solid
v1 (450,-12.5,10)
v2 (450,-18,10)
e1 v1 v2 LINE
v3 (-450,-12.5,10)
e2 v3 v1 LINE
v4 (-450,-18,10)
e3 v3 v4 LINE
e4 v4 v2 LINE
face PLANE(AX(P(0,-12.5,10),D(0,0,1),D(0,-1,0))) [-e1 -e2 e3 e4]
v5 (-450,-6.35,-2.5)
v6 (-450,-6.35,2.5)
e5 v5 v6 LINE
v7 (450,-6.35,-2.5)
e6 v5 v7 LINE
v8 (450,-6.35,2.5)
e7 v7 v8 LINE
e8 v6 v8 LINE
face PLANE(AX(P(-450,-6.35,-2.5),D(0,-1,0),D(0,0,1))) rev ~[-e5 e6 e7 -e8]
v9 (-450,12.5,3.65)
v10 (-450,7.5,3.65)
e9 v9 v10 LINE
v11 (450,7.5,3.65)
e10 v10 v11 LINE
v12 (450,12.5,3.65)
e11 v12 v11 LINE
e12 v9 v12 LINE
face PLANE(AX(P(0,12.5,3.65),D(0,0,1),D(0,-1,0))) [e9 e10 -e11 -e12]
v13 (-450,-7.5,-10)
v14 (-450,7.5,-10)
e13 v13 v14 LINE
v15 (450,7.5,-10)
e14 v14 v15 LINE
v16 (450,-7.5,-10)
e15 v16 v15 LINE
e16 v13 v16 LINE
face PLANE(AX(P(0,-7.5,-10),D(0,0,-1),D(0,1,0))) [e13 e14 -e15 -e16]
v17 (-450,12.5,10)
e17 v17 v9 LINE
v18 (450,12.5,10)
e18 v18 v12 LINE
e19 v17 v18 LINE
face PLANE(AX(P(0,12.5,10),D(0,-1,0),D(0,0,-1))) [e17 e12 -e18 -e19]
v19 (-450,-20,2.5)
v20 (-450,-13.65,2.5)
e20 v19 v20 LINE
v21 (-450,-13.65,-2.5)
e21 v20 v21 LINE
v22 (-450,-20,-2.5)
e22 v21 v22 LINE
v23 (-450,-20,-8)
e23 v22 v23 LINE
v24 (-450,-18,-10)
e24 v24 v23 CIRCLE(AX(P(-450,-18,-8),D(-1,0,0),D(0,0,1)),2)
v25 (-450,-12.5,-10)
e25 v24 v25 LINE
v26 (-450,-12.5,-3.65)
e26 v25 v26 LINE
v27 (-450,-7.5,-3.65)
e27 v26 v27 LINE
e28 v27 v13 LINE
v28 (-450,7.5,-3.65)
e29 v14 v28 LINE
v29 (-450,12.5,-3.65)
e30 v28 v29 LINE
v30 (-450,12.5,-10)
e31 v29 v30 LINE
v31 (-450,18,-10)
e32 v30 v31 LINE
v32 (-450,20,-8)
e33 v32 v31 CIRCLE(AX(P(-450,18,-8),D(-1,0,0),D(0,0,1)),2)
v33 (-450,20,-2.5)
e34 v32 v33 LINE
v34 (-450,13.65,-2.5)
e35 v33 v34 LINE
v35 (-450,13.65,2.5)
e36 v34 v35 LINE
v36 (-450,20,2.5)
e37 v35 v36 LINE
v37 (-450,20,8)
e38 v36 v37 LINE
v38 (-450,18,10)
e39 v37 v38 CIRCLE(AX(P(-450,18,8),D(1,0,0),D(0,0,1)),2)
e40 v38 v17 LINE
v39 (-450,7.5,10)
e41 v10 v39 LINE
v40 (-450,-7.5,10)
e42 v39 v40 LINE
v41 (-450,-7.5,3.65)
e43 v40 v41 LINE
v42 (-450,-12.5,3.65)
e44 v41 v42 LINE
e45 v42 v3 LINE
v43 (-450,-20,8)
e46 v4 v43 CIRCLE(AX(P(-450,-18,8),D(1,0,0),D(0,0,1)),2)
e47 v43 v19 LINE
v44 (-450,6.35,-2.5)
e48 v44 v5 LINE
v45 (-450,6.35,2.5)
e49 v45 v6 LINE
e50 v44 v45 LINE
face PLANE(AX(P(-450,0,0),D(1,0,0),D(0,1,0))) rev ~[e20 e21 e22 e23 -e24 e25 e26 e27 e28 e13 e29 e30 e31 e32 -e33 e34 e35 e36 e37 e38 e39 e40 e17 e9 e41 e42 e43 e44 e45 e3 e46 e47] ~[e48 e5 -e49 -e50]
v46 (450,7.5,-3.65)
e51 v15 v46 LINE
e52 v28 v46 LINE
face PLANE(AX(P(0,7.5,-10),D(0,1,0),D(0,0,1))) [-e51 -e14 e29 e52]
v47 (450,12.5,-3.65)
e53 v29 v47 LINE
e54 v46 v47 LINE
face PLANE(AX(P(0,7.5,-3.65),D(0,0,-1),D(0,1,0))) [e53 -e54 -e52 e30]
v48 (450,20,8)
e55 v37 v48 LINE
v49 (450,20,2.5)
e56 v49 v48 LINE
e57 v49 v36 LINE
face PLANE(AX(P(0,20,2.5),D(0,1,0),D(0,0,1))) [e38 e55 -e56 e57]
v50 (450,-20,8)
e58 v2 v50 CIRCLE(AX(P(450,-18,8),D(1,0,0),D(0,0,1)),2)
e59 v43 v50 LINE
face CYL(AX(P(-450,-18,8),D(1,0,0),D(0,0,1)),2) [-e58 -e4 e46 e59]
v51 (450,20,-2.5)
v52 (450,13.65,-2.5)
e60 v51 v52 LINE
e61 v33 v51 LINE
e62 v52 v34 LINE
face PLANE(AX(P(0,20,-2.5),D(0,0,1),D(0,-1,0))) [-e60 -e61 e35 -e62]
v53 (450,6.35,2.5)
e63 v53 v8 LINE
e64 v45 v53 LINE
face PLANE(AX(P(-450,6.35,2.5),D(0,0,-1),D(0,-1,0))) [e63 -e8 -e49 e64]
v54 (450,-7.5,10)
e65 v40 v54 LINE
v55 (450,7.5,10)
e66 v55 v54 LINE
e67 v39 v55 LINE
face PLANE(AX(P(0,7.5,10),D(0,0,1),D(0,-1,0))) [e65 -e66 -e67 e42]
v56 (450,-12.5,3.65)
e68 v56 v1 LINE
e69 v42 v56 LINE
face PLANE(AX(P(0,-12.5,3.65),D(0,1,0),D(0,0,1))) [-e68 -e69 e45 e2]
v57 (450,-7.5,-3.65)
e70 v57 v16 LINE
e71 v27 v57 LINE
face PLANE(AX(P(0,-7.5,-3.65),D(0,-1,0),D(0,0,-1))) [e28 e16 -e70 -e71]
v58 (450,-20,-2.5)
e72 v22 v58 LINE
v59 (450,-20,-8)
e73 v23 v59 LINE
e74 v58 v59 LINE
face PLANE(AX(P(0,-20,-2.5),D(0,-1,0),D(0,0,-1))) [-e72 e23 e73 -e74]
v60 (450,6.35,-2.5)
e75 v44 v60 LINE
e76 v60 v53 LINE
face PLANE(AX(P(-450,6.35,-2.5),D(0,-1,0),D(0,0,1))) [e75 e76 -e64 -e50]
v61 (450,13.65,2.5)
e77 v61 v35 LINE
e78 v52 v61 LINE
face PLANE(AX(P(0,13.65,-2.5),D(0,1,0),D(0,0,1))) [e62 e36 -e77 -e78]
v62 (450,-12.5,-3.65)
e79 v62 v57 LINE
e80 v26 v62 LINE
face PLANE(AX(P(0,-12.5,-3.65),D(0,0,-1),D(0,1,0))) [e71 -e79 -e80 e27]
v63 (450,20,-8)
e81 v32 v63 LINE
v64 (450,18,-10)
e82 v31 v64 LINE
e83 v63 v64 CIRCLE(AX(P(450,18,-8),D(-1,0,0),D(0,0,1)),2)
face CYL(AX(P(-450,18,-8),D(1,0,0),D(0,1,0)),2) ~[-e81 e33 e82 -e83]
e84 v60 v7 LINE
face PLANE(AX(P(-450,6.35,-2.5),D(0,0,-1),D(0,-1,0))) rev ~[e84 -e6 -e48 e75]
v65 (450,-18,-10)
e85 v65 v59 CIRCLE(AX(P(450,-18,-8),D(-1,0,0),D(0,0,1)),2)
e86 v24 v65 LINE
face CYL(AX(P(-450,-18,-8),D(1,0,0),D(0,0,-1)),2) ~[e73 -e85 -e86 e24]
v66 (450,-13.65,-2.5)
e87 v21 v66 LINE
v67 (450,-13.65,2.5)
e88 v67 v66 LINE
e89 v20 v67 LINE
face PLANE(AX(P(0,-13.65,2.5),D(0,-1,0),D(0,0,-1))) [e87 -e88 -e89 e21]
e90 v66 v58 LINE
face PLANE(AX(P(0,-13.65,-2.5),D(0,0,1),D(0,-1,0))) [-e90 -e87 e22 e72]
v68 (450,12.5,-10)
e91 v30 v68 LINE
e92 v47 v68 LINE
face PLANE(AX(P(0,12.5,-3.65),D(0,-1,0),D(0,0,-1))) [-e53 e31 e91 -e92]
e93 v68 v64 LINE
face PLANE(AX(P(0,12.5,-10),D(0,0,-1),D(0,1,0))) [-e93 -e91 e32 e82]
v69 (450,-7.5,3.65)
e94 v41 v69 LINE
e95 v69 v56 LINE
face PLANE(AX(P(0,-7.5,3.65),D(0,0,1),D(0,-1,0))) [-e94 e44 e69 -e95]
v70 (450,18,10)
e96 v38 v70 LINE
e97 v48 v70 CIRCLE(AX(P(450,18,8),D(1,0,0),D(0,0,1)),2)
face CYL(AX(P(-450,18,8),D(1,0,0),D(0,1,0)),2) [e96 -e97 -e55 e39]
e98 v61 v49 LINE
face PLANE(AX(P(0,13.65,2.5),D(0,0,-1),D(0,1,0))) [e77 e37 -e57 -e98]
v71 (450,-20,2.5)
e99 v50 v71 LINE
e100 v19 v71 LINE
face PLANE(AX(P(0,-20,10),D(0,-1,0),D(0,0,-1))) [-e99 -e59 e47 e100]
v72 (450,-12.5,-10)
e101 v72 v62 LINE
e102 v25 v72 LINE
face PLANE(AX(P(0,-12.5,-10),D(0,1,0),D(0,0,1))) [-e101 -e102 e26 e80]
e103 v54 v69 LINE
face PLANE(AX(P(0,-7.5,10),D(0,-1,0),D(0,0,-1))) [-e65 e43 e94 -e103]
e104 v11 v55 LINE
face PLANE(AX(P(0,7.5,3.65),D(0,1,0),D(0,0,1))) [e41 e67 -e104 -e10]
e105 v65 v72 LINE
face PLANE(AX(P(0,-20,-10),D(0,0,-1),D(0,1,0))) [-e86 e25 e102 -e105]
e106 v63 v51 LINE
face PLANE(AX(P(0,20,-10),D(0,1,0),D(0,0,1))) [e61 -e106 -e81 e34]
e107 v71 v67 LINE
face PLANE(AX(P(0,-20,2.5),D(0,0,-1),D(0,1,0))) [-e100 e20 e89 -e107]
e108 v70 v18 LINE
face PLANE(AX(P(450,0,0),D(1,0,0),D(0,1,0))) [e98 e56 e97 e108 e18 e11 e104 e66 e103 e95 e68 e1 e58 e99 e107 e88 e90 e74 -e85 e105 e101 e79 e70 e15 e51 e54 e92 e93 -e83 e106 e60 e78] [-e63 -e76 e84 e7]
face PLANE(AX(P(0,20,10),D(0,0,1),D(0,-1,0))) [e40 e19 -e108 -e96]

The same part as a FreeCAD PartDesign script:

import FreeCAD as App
import Part
import Sketcher
from FreeCAD import Vector
Q = App.Units.Quantity


def edges_at(feature, points):
    """Names of the edges that pass closest to the given points."""
    edges = feature.Shape.Edges
    near = lambda p: min(range(len(edges)), key=lambda i: edges[i].distToShape(Part.Vertex(*p))[0])
    return sorted({f"Edge{near(p) + 1}" for p in points})


def add_polygon(sketch, points):
    """Adds a closed chain of lines whose ends are joined by coincident constraints."""
    first, n = sketch.GeometryCount, len(points)
    for a, b in zip(points, points[1:] + points[:1]):
        sketch.addGeometry(Part.LineSegment(App.Vector(*a, 0), App.Vector(*b, 0)), False)
    for i in range(n):
        sketch.addConstraint(Sketcher.Constraint("Coincident", first + i, 2, first + (i + 1) % n, 1))

doc = App.newDocument("Part")
body = doc.addObject("PartDesign::Body", "Body")

sketch1 = body.newObject("Sketcher::SketchObject", "Sketch")
sketch1.AttachmentSupport = (doc.getObject("YZ_Plane"), [""])
sketch1.MapMode = "FlatFace"
add_polygon(sketch1, [(20, 2), (20, 10), (12, 10), (12, 4), (8, 4), (8, 10), (-8, 10), (-8, 4), (-12, 4), (-12, 10), (-20, 10), (-20, 2), (-14, 2), (-14, -2), (-20, -2), (-20, -10), (-12, -10), (-12, -4), (-8, -4), (-8, -10), (8, -10), (8, -4), (12, -4), (12, -10), (20, -10), (20, -2), (14, -2), (14, 2)])
sketch1.addConstraint([
    Sketcher.Constraint("Vertical", 0),
    Sketcher.Constraint("Horizontal", 1),
    Sketcher.Constraint("Vertical", 2),
    Sketcher.Constraint("Horizontal", 3),
    Sketcher.Constraint("Vertical", 4),
    Sketcher.Constraint("Horizontal", 5),
    Sketcher.Constraint("Vertical", 6),
    Sketcher.Constraint("Horizontal", 7),
    Sketcher.Constraint("Vertical", 8),
    Sketcher.Constraint("Horizontal", 9),
    Sketcher.Constraint("Vertical", 10),
    Sketcher.Constraint("Horizontal", 11),
    Sketcher.Constraint("Vertical", 12),
    Sketcher.Constraint("Horizontal", 13),
    Sketcher.Constraint("Vertical", 14),
    Sketcher.Constraint("Horizontal", 15),
    Sketcher.Constraint("Vertical", 16),
    Sketcher.Constraint("Horizontal", 17),
    Sketcher.Constraint("Vertical", 18),
    Sketcher.Constraint("Horizontal", 19),
    Sketcher.Constraint("Vertical", 20),
    Sketcher.Constraint("Horizontal", 21),
    Sketcher.Constraint("Vertical", 22),
    Sketcher.Constraint("Horizontal", 23),
    Sketcher.Constraint("Vertical", 24),
    Sketcher.Constraint("Horizontal", 25),
    Sketcher.Constraint("Vertical", 26),
    Sketcher.Constraint("Horizontal", 27),
    Sketcher.Constraint("Symmetric", 0, 2, 14, 2, -1, 1),
    Sketcher.Constraint("Symmetric", 2, 2, 16, 2, -1, 1),
    Sketcher.Constraint("Symmetric", 4, 2, 18, 2, -1, 1),
    Sketcher.Constraint("Symmetric", 6, 2, 20, 2, -1, 1),
    Sketcher.Constraint("Symmetric", 8, 2, 22, 2, -1, 1),
    Sketcher.Constraint("Symmetric", 10, 2, 24, 2, -1, 1),
    Sketcher.Constraint("Symmetric", 12, 2, 26, 2, -1, 1),
    Sketcher.Constraint("Symmetric", 3, 2, 6, 2, -2),
    Sketcher.Constraint("Symmetric", 1, 2, 8, 2, -2),
    Sketcher.Constraint("Symmetric", 13, 2, 24, 2, -2),
    Sketcher.Constraint("Horizontal", 1, 2, 4, 2),
    Sketcher.Constraint("Equal", 23, 0),
    Sketcher.Constraint("Equal", 27, 2),
    Sketcher.Constraint("Equal", 21, 12),
    Sketcher.Constraint("DistanceX", 3, 2, 3, 1, Q("5 mm")),
    Sketcher.Constraint("DistanceX", 5, 2, 5, 1, Q("15 mm")),
    Sketcher.Constraint("DistanceX", 1, 2, 1, 1, Q("7.5 mm")),
    Sketcher.Constraint("DistanceX", 11, 1, 11, 2, Q("6.35 mm")),
])
pad1 = body.newObject("PartDesign::Pad", "Pad")
pad1.Profile = sketch1
pad1.Length = 900
pad1.Midplane = True

sketch2 = body.newObject("Sketcher::SketchObject", "Sketch001")
sketch2.AttachmentSupport = (doc.getObject("YZ_Plane"), [""])
sketch2.MapMode = "FlatFace"
sketch2.AttachmentOffset = App.Placement(Vector(0, 0, -450), App.Rotation())
add_polygon(sketch2, [(6, 2), (6, -2), (-6, -2), (-6, 2)])
sketch2.addConstraint([
    Sketcher.Constraint("Vertical", 0),
    Sketcher.Constraint("Horizontal", 1),
    Sketcher.Constraint("Vertical", 2),
    Sketcher.Constraint("Horizontal", 3),
    Sketcher.Constraint("Symmetric", 0, 2, 2, 2, -1, 1),
    Sketcher.Constraint("DistanceY", 0, 2, 0, 1, Q("5 mm")),
    Sketcher.Constraint("DistanceX", 1, 2, 1, 1, Q("12.7 mm")),
])
pocket1 = body.newObject("PartDesign::Pocket", "Pocket")
pocket1.Profile = sketch2
pocket1.Length = 900
pocket1.Reversed = True
doc.recompute()

fillet = body.newObject("PartDesign::Fillet", "Fillet")
fillet.Base = (pocket1, edges_at(pocket1, [
    (0, 20, 10),
    (0, -20, -10),
    (0, 20, -10),
    (0, -20, 10),
]))
fillet.Radius = 2

doc.recompute()
